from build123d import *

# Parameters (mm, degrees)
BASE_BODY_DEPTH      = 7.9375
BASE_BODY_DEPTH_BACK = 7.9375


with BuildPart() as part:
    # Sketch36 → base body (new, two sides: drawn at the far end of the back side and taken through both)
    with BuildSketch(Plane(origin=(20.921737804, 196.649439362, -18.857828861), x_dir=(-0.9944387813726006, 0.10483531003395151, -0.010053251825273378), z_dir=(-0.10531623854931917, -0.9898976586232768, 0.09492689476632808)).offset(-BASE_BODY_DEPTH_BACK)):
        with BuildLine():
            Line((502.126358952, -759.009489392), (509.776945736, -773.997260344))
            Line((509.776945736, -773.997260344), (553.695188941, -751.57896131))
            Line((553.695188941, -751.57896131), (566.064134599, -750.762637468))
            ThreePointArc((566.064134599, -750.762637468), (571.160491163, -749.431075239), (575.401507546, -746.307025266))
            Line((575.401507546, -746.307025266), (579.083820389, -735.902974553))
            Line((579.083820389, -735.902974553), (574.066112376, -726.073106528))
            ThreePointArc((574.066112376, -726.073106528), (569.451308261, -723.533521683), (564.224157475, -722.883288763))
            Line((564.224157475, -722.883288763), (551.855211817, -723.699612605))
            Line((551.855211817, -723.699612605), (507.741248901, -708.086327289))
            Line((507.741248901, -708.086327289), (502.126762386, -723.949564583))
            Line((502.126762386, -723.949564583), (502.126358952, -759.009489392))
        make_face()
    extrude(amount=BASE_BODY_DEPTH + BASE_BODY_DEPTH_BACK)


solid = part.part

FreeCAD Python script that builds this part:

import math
import FreeCAD as App
import Part
import Sketcher

V = App.Vector
Q = App.Units.Quantity

doc = App.newDocument("Part")
params = doc.addObject("Spreadsheet::Sheet", "Params")
for row, (alias, value) in enumerate([
    ("sketch1_radius", "0.55 in"),
    ("pad1_length", "0.3125 in"),
    ("pad1_length2", "0.3125 in"),
], start=1):
    params.set(f"A{row}", alias)
    params.set(f"B{row}", "=" + value)
    params.setAlias(f"B{row}", alias)

body = doc.addObject("PartDesign::Body", "Body")

sketch1 = body.newObject("Sketcher::SketchObject", "Sketch")
sketch1.Placement = App.Placement(V(20.921738, 196.649439, -18.857829), App.Rotation(V(-0.994438781, 0.10483531, -0.010053252), V(0, -0.095457756, -0.995433482), V(-0.105316239, -0.989897659, 0.094926895), "ZXY"))
sketch1.addGeometry([
    Part.LineSegment(V(502.126359, -759.009489, 0), V(509.776945, -773.99726, 0)),
    Part.LineSegment(V(509.776945, -773.99726, 0), V(553.695189, -751.578961, 0)),
    Part.LineSegment(V(553.695189, -751.578961, 0), V(566.064134, -750.762638, 0)),
    Part.ArcOfCircle(Part.Circle(V(565.144146, -736.822963, 0), V(0, 0, 1), 13.97), math.radians(-86.224078), math.radians(-42.756791)),
    Part.LineSegment(V(575.401507, -746.307025, 0), V(579.08382, -735.902975, 0)),
    Part.LineSegment(V(579.08382, -735.902975, 0), V(574.066112, -726.073107, 0)),
    Part.ArcOfCircle(Part.Circle(V(565.144146, -736.822963, 0), V(0, 0, 1), 13.97), math.radians(50.308635), math.radians(93.775922)),
    Part.LineSegment(V(564.224157, -722.883289, 0), V(551.855211, -723.699613, 0)),
    Part.LineSegment(V(551.855211, -723.699613, 0), V(507.741249, -708.086327, 0)),
    Part.LineSegment(V(507.741249, -708.086327, 0), V(502.126762, -723.949565, 0)),
    Part.LineSegment(V(502.126762, -723.949565, 0), V(502.126359, -759.009489, 0)),
], False)
sketch1.addConstraint([
    Sketcher.Constraint("Coincident", 0, 2, 1, 1),
    Sketcher.Constraint("Coincident", 1, 2, 2, 1),
    Sketcher.Constraint("Tangent", 2, 2, 3, 1),
    Sketcher.Constraint("Coincident", 3, 2, 4, 1),
    Sketcher.Constraint("Coincident", 4, 2, 5, 1),
    Sketcher.Constraint("Coincident", 5, 2, 6, 1),
    Sketcher.Constraint("Tangent", 6, 2, 7, 1),
    Sketcher.Constraint("Coincident", 7, 2, 8, 1),
    Sketcher.Constraint("Coincident", 8, 2, 9, 1),
    Sketcher.Constraint("Coincident", 9, 2, 10, 1),
    Sketcher.Constraint("Coincident", 10, 2, 0, 1),
    Sketcher.Constraint("Coincident", 6, 3, 3, 3),
    Sketcher.Constraint("Equal", 3, 6),
    Sketcher.Constraint("Perpendicular", 0, 1),
    Sketcher.Constraint("Perpendicular", 1, 5),
    Sketcher.Constraint("Parallel", 2, 7),
    Sketcher.Constraint("Perpendicular", 4, 8),
    Sketcher.Constraint("Perpendicular", 8, 9),
    Sketcher.Constraint("Equal", 4, 5),
    Sketcher.Constraint("Equal", 2, 7),
    Sketcher.Constraint("Equal", 0, 9),
    Sketcher.Constraint("Radius", 3, Q("0.55 in")),
    Sketcher.Constraint("Distance", 0, Q("0.6625 in")),
    Sketcher.Constraint("DistanceX", 0, 2, 3, 3, 55.3672),
    Sketcher.Constraint("DistanceY", 1, 2, 3, 3, 14.755998),
    Sketcher.Constraint("DistanceY", 0, 2, 1, 2, 22.418299),
    Sketcher.Constraint("DistanceX", 7, 2, 5, 2, 22.210901),
    Sketcher.Constraint("Distance", 1, 49.309149),
    Sketcher.Constraint("Distance", 4, 11.036471),
    Sketcher.Constraint("DistanceY", 0, 2, -1, 1, 773.99726),
    Sketcher.Constraint("DistanceX", -1, 1, 1, 2, 553.695189),
    Sketcher.Constraint("DistanceX", -1, 1, 8, 2, 507.741249),
])
sketch1.setExpression("Constraints[21]", "Params.sketch1_radius")
pad1 = body.newObject("PartDesign::Pad", "Pad")
pad1.Profile = sketch1
pad1.Type = "TwoLengths"
pad1.setExpression("Length", "Params.pad1_length")
pad1.setExpression("Length2", "Params.pad1_length2")

doc.recompute()
